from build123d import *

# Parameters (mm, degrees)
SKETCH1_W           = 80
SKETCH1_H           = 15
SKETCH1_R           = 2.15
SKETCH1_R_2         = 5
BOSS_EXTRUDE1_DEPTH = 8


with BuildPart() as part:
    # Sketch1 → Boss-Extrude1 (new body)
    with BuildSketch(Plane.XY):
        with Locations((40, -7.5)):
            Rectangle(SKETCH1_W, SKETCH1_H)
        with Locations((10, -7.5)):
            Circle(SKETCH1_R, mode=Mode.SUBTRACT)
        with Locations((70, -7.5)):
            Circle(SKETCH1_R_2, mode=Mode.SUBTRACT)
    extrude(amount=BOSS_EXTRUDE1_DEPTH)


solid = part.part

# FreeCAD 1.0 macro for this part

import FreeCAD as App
import Part
import Sketcher

V = App.Vector

doc = App.newDocument("Part")
body = doc.addObject("PartDesign::Body", "Body")

# Sketch on XY plane
sketch1 = doc.addObject("Sketcher::SketchObject", "Sketch")
body.addObject(sketch1)
sketch1.AttachmentSupport = (doc.XY_Plane, [""])
sketch1.MapMode = "FlatFace"
sketch1.addGeometry([
    Part.LineSegment(V(0, 0, 0), V(0, -15, 0)),  # 0
    Part.LineSegment(V(0, -15, 0), V(80, -15, 0)),  # 1
    Part.LineSegment(V(80, -15, 0), V(80, 0, 0)),  # 2
    Part.LineSegment(V(80, 0, 0), V(0, 0, 0)),  # 3
    Part.Circle(V(10, -7.5, 0), V(0, 0, 1), 2.1),  # 4
    Part.Circle(V(70, -7.5, 0), V(0, 0, 1), 5),  # 5
], False)
sketch1.addConstraint([
    Sketcher.Constraint("Coincident", 0, 2, 1, 1),
    Sketcher.Constraint("Coincident", 1, 2, 2, 1),
    Sketcher.Constraint("Coincident", 2, 2, 3, 1),
    Sketcher.Constraint("Coincident", 3, 2, 0, 1),
    Sketcher.Constraint("Vertical", 0),
    Sketcher.Constraint("Horizontal", 1),
    Sketcher.Constraint("Vertical", 2),
    Sketcher.Constraint("Horizontal", 3),
    Sketcher.Constraint("Coincident", 3, 2, -1, 1),
    Sketcher.Constraint("Horizontal", 4, 3, 5, 3),
    Sketcher.Constraint("Diameter", 5, 10.0),
    Sketcher.Constraint("Diameter", 4, 4.3),
    Sketcher.Constraint("DistanceX", 1, 1, 1, 2, 80.0),
    Sketcher.Constraint("DistanceY", 0, 2, 0, 1, 15.0),
    Sketcher.Constraint("DistanceX", -1, 1, 4, 3, 10.0),
    Sketcher.Constraint("DistanceX", -1, 1, 5, 3, 70.0),
    Sketcher.Constraint("DistanceY", 4, 3, -1, 1, 7.5),
])
pad1 = doc.addObject("PartDesign::Pad", "Pad")
body.addObject(pad1)
pad1.Profile = sketch1
pad1.Length = 8

doc.recompute()
